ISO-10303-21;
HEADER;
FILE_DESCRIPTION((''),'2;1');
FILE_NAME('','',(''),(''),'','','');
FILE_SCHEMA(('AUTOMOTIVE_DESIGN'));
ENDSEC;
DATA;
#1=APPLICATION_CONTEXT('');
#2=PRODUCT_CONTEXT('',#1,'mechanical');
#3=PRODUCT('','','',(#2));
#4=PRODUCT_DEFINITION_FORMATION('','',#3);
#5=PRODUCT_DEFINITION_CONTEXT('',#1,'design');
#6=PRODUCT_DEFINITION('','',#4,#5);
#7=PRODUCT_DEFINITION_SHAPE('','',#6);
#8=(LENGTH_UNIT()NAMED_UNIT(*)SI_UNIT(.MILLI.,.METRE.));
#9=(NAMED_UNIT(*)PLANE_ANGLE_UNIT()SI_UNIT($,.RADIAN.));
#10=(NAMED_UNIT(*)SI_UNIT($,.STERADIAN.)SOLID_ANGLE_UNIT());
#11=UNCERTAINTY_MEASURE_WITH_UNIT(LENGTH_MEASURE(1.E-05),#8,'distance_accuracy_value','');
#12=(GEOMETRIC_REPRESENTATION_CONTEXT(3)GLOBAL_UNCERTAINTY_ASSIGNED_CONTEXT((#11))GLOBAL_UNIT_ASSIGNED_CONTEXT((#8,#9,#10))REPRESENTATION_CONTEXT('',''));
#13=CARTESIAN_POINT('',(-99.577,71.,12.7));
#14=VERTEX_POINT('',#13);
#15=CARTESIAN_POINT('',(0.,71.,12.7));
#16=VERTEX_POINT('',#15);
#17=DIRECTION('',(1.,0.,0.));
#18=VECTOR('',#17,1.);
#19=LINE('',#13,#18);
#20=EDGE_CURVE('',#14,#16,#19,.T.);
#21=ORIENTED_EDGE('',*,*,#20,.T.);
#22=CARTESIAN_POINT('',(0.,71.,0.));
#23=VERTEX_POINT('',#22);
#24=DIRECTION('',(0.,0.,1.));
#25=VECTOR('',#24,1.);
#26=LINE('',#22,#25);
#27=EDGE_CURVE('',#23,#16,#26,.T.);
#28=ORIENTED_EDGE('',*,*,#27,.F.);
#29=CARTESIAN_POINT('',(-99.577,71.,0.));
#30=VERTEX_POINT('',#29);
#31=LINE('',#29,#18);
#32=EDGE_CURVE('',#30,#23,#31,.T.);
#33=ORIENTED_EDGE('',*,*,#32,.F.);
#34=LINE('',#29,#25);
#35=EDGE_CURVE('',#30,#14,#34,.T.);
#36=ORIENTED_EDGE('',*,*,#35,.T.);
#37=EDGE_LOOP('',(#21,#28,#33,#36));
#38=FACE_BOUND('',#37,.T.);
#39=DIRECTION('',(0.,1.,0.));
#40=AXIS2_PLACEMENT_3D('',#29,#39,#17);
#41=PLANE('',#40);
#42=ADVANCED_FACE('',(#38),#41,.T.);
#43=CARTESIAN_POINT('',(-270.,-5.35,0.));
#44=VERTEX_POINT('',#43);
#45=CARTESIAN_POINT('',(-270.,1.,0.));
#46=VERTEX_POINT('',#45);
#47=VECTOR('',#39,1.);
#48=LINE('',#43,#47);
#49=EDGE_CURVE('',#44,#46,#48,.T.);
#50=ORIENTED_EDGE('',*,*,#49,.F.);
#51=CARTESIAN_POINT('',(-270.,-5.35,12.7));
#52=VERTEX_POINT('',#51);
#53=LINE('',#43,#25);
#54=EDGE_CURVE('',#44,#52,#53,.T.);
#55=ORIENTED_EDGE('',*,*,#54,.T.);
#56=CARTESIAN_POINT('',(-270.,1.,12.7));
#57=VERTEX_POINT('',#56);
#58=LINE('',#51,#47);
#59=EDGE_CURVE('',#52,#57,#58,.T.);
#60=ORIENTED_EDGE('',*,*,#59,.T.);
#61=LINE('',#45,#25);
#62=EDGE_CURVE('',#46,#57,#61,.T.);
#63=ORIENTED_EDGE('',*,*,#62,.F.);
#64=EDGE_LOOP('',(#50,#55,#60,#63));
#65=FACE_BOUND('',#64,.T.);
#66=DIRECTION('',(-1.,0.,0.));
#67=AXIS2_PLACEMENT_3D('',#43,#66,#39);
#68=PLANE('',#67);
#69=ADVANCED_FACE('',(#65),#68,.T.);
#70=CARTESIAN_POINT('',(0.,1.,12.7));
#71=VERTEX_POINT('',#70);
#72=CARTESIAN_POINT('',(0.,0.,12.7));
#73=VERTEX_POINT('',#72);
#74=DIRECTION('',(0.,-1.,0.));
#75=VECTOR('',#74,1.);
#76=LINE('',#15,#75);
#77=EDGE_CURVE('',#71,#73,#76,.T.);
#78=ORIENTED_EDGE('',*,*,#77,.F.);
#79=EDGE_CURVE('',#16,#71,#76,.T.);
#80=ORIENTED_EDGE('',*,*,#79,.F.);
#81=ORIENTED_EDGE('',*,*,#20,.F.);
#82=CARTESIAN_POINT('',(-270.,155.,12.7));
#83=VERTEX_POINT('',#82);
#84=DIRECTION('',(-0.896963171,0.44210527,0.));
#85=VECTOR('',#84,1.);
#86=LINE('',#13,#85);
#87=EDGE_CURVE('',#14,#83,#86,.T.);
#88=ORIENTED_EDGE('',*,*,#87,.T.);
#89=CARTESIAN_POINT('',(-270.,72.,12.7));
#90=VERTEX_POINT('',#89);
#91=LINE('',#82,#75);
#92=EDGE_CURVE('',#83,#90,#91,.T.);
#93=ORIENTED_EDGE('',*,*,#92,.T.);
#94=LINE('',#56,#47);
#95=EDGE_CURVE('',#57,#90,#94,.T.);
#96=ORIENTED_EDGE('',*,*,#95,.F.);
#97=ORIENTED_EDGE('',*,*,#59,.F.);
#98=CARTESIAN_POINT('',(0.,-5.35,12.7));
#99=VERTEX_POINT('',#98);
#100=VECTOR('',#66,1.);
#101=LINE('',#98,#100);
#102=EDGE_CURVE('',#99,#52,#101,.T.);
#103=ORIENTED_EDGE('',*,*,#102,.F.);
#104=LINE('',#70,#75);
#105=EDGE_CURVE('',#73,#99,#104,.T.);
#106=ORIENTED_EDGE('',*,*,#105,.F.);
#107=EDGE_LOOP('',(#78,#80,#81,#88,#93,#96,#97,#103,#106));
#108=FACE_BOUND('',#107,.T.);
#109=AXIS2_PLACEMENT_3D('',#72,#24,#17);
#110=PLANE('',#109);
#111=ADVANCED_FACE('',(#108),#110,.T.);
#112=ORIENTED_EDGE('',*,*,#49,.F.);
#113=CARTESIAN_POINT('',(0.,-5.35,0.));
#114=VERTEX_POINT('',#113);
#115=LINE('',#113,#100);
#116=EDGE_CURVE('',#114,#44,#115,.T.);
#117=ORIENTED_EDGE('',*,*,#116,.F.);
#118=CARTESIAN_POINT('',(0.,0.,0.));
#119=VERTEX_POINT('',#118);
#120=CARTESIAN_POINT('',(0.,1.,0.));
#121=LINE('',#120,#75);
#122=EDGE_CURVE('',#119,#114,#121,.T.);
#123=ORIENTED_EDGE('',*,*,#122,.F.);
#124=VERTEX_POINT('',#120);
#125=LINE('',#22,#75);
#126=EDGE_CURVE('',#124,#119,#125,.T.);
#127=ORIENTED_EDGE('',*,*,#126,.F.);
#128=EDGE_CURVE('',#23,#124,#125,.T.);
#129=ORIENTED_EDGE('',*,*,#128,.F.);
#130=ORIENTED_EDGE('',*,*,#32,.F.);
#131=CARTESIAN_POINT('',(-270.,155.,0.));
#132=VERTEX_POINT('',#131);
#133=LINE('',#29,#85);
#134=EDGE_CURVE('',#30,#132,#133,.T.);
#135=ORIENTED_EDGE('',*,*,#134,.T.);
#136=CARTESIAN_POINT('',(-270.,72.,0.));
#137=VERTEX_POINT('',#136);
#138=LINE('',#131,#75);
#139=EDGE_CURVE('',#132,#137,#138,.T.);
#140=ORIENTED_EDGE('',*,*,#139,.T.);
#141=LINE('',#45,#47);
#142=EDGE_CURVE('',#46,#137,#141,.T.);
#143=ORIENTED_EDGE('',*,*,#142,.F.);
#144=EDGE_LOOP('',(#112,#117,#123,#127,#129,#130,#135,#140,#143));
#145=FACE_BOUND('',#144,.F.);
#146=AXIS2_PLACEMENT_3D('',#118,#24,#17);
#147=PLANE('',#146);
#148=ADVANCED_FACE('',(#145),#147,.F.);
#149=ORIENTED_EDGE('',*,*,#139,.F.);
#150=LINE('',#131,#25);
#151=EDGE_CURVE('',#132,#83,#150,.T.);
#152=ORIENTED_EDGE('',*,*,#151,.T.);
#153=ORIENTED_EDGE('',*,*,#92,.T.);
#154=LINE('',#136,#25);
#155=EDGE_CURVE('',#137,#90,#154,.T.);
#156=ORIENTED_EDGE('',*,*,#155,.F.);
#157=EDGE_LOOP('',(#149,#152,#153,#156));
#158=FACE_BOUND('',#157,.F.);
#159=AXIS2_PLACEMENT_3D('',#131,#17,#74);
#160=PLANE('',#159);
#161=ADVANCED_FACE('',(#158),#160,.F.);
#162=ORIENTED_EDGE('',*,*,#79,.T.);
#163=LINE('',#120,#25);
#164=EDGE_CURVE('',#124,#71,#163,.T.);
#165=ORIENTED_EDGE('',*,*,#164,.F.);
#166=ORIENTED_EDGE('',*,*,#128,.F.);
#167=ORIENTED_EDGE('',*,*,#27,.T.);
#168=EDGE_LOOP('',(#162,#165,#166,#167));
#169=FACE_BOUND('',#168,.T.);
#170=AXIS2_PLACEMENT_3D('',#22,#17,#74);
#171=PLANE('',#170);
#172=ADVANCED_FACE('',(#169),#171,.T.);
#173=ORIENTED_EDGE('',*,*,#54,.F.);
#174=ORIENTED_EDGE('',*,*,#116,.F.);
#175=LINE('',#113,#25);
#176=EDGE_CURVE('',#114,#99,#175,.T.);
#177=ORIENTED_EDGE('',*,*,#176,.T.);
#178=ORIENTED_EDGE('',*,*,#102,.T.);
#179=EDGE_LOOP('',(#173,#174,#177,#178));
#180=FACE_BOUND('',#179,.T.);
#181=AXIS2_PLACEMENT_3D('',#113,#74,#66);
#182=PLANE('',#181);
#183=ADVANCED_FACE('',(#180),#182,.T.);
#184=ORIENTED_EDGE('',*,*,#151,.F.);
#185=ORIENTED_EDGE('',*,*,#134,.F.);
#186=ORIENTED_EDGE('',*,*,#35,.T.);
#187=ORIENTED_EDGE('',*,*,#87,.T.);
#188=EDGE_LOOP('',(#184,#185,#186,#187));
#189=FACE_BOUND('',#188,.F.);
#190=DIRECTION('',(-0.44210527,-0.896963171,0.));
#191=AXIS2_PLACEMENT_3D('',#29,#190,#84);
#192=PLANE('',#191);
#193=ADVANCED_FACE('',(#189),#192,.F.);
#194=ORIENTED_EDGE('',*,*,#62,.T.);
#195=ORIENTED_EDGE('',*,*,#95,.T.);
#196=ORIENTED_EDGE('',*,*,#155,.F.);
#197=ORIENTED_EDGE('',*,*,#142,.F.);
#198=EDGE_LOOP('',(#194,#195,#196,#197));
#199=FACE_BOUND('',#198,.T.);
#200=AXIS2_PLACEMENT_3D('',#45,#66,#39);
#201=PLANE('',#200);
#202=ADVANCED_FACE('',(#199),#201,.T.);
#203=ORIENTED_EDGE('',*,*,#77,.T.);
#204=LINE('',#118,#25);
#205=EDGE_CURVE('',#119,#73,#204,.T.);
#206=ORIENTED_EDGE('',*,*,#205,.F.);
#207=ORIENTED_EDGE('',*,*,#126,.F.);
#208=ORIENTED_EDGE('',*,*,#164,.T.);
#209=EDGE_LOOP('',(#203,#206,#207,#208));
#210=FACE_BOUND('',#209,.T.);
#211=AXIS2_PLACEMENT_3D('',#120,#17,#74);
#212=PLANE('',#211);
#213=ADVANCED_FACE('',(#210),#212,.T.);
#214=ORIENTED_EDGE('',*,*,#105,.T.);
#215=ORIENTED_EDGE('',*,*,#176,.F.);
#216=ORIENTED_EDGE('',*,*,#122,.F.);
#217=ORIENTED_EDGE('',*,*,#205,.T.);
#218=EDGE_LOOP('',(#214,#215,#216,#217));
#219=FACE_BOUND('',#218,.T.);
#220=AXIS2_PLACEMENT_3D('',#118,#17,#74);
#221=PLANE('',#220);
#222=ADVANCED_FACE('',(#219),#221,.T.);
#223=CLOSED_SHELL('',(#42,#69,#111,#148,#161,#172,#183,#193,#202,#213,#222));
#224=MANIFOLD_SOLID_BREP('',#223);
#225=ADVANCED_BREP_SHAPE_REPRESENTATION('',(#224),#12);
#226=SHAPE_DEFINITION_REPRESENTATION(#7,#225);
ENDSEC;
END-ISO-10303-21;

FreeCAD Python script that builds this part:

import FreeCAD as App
import Part
import Sketcher

doc = App.newDocument("Part")
body = doc.addObject("PartDesign::Body", "Body")

# Sketch on XY plane
sketch1 = body.newObject("Sketcher::SketchObject", "Sketch")
sketch1.AttachmentSupport = (doc.getObject("XY_Plane"), [""])
sketch1.MapMode = "FlatFace"
sketch1.addGeometry(Part.LineSegment(App.Vector(-270, 155, 0), App.Vector(-270, -5, 0)), False)
sketch1.addGeometry(Part.LineSegment(App.Vector(-270, -5, 0), App.Vector(0, -5, 0)), False)
sketch1.addGeometry(Part.LineSegment(App.Vector(0, -5, 0), App.Vector(0, 71, 0)), False)
sketch1.addGeometry(Part.LineSegment(App.Vector(0, 71, 0), App.Vector(-100, 71, 0)), False)
sketch1.addGeometry(Part.LineSegment(App.Vector(-100, 71, 0), App.Vector(-270, 155, 0)), False)
sketch1.addConstraint(Sketcher.Constraint("Coincident", 0, 2, 1, 1))
sketch1.addConstraint(Sketcher.Constraint("Coincident", 1, 2, 2, 1))
sketch1.addConstraint(Sketcher.Constraint("Coincident", 2, 2, 3, 1))
sketch1.addConstraint(Sketcher.Constraint("Coincident", 3, 2, 4, 1))
sketch1.addConstraint(Sketcher.Constraint("Coincident", 4, 2, 0, 1))
sketch1.addConstraint(Sketcher.Constraint("Vertical", 0))
sketch1.addConstraint(Sketcher.Constraint("Horizontal", 1))
sketch1.addConstraint(Sketcher.Constraint("Vertical", 2))
sketch1.addConstraint(Sketcher.Constraint("Horizontal", 3))
sketch1.addConstraint(Sketcher.Constraint("PointOnObject", 1, 2, -2))
sketch1.addConstraint(Sketcher.Constraint("DistanceX", 1, 1, 1, 2, 270.0))
sketch1.addConstraint(Sketcher.Constraint("Distance", 4, 190.0))
sketch1.addConstraint(Sketcher.Constraint("DistanceY", -1, 1, 2, 2, 71.0))
sketch1.addConstraint(Sketcher.Constraint("DistanceY", -1, 1, 4, 2, 155.0))
sketch1.addConstraint(Sketcher.Constraint("DistanceY", 0, 2, 0, 1, 160.35))
pad1 = body.newObject("PartDesign::Pad", "Pad")
pad1.Profile = sketch1
pad1.Length = 12.7

doc.recompute()
